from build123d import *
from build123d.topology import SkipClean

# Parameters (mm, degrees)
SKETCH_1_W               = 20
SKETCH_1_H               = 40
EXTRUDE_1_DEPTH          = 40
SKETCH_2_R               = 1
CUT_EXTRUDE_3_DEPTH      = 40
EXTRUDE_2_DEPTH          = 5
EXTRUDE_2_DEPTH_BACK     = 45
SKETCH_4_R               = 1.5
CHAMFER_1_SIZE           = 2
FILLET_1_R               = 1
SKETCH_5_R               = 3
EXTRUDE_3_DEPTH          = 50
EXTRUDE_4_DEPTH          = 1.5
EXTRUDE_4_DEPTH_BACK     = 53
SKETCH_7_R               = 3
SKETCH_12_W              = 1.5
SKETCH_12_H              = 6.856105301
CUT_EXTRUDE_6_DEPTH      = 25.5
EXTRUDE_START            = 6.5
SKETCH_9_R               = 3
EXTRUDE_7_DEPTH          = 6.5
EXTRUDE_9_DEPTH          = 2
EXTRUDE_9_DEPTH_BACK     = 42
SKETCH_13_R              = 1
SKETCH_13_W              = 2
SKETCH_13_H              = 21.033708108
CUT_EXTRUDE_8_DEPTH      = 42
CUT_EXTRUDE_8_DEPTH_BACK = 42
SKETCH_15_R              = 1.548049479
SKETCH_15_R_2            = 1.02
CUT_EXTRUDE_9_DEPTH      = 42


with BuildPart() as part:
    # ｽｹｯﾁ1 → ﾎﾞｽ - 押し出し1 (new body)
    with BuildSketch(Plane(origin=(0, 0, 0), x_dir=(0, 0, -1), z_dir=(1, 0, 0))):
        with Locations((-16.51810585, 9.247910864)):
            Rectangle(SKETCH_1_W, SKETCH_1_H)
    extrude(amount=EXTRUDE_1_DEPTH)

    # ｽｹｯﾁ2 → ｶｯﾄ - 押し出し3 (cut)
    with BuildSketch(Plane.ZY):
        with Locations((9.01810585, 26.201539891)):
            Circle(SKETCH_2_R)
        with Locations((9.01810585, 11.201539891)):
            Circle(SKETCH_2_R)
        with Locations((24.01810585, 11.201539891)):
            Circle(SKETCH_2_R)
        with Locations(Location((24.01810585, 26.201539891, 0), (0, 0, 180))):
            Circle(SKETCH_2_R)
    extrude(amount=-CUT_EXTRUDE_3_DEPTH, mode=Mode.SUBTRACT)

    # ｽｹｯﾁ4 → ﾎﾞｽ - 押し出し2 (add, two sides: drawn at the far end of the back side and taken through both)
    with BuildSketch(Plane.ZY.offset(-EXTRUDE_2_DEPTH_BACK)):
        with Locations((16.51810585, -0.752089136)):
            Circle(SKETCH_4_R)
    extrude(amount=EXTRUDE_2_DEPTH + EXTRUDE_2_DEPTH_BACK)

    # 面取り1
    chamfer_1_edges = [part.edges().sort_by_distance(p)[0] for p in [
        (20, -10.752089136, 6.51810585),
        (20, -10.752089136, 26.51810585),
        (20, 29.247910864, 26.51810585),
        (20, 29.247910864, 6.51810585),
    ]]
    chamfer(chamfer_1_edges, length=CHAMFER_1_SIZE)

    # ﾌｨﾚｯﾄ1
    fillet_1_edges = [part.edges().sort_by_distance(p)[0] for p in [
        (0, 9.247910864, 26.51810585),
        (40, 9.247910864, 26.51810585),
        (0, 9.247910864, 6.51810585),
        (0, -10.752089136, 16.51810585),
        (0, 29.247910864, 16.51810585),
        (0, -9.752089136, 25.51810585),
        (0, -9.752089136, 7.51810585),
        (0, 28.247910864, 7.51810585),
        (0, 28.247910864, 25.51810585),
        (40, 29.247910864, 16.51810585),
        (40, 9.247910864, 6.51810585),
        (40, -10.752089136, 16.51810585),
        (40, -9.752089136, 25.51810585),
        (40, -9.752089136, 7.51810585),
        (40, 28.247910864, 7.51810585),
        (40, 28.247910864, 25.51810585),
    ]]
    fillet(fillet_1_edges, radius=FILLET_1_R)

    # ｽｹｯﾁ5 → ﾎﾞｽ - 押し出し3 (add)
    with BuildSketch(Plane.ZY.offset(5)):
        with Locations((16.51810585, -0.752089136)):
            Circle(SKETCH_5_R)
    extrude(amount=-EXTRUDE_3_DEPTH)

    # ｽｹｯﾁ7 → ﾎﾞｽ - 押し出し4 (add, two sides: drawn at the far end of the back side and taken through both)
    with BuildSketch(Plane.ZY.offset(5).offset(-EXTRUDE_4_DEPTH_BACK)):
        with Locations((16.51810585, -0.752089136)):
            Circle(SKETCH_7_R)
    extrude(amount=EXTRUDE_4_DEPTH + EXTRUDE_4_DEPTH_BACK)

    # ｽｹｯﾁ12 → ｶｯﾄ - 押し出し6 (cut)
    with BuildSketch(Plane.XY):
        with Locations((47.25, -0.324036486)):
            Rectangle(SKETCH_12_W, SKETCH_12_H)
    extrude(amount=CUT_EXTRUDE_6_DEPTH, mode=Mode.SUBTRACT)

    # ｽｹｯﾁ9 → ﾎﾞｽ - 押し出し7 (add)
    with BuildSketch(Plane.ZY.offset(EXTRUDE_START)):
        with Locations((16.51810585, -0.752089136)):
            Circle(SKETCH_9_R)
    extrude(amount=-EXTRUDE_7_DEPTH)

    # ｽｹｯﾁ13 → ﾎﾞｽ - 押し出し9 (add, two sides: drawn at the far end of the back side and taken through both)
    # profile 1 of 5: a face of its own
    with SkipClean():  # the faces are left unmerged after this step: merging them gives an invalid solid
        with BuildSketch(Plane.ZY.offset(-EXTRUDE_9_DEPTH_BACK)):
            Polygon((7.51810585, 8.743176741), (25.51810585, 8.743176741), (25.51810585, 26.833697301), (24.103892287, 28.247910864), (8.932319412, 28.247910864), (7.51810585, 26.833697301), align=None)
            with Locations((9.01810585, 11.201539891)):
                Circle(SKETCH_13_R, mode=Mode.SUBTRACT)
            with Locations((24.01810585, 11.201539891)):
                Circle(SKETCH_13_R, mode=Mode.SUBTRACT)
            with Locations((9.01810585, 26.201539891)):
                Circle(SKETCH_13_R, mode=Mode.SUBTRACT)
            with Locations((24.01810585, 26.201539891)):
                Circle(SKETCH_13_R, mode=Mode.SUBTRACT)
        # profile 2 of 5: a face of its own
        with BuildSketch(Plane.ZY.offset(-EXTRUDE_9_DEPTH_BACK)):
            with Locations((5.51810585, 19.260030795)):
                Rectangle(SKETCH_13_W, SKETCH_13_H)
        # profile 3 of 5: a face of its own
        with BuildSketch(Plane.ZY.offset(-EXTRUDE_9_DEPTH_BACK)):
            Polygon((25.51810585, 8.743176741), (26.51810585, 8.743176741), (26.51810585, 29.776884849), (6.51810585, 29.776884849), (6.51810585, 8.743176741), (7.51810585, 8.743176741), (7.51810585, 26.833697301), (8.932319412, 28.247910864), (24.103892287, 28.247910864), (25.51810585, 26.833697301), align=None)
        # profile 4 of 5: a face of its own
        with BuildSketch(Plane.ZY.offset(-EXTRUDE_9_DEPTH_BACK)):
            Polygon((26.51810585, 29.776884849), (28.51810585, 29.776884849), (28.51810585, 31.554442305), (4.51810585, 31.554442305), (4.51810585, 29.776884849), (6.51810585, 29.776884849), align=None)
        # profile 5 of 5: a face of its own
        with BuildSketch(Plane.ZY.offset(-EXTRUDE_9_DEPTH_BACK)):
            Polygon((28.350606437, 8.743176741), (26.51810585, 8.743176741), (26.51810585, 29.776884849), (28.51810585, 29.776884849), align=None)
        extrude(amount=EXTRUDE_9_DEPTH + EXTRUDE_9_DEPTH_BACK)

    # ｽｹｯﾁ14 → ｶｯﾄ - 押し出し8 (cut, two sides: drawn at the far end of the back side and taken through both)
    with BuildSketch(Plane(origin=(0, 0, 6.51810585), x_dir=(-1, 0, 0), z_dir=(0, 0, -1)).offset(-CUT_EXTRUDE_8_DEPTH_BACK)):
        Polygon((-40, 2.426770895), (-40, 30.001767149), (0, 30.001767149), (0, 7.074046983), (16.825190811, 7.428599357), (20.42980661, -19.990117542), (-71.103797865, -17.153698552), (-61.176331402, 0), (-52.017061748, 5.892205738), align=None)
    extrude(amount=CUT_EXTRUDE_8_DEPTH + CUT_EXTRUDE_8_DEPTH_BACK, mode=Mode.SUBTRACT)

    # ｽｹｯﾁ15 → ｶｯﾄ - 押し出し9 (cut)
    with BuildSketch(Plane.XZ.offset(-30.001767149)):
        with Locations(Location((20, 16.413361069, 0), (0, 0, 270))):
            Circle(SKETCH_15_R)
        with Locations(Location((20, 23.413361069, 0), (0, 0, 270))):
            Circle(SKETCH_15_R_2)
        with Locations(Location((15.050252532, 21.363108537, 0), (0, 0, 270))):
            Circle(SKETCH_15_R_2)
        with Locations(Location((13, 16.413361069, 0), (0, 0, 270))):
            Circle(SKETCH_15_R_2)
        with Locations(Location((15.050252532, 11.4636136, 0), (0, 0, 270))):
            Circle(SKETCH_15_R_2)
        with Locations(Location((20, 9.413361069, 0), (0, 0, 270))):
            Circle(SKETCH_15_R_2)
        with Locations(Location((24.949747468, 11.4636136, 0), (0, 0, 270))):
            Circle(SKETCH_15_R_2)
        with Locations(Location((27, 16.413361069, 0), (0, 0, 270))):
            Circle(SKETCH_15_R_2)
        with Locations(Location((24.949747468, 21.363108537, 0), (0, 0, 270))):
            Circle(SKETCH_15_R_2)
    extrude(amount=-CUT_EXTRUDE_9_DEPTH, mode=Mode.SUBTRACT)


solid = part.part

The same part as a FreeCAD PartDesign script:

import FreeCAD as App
import Part
import Sketcher
from FreeCAD import Vector
Q = App.Units.Quantity


def edges_at(feature, points):
    """Names of the edges that pass closest to the given points."""
    edges = feature.Shape.Edges
    near = lambda p: min(range(len(edges)), key=lambda i: edges[i].distToShape(Part.Vertex(*p))[0])
    return sorted({f"Edge{near(p) + 1}" for p in points})

doc = App.newDocument("Part")
params = doc.addObject("Spreadsheet::Sheet", "Params")
for row, (alias, value) in enumerate([
    ("sketch1_width", "40 mm"),
    ("sketch1_height", "20 mm"),
    ("pad1_length", "40 mm"),
    ("sketch2_diameter", "2 mm"),
    ("pocket1_length", "40 mm"),
    ("sketch3_diameter", "3 mm"),
    ("pad2_length", "5 mm"),
    ("pad2_length2", "45 mm"),
    ("chamfer_size", "2 mm"),
    ("fillet_radius", "1 mm"),
    ("sketch4_diameter", "6 mm"),
    ("pad3_length", "50 mm"),
    ("sketch5_diameter", "6 mm"),
    ("pad4_length", "1.5 mm"),
    ("pad4_length2", "53 mm"),
    ("sketch6_width", "1.5 mm"),
    ("pocket2_length", "25.5 mm"),
    ("sketch7_diameter", "6 mm"),
    ("pad5_length", "6.5 mm"),
    ("sketch8_diameter", "2 mm"),
    ("sketch8_height", "24 mm"),
    ("pad6_length", "2 mm"),
    ("pad6_length2", "42 mm"),
    ("sketch9_width", "40 mm"),
    ("sketch10_diameter", "2.04 mm"),
    ("pocket4_length", "42 mm"),
], start=1):
    params.set(f"A{row}", alias)
    params.set(f"B{row}", "=" + value)
    params.setAlias(f"B{row}", alias)

body = doc.addObject("PartDesign::Body", "Body")

sketch1 = doc.addObject("Sketcher::SketchObject", "Sketch")
body.addObject(sketch1)
sketch1.AttachmentSupport = (doc.YZ_Plane, [""])
sketch1.MapMode = "FlatFace"
sketch1.addGeometry([
    Part.LineSegment(Vector(29.247911, 26.518106, 0), Vector(-10.752089, 26.518106, 0)),
    Part.LineSegment(Vector(-10.752089, 26.518106, 0), Vector(-10.752089, 6.518106, 0)),
    Part.LineSegment(Vector(-10.752089, 6.518106, 0), Vector(29.247911, 6.518106, 0)),
    Part.LineSegment(Vector(29.247911, 6.518106, 0), Vector(29.247911, 26.518106, 0)),
], False)
sketch1.addConstraint([
    Sketcher.Constraint("Coincident", 0, 2, 1, 1),
    Sketcher.Constraint("Coincident", 1, 2, 2, 1),
    Sketcher.Constraint("Coincident", 2, 2, 3, 1),
    Sketcher.Constraint("Coincident", 3, 2, 0, 1),
    Sketcher.Constraint("Horizontal", 0),
    Sketcher.Constraint("Vertical", 1),
    Sketcher.Constraint("Horizontal", 2),
    Sketcher.Constraint("Vertical", 3),
    Sketcher.Constraint("DistanceX", 0, 2, 0, 1, Q("40 mm")),
    Sketcher.Constraint("DistanceY", 1, 2, 1, 1, Q("20 mm")),
    Sketcher.Constraint("DistanceX", 0, 2, -1, 1, Q("10.752089 mm")),
    Sketcher.Constraint("DistanceY", -1, 1, 0, 2, Q("26.518106 mm")),
])
sketch1.setExpression("Constraints[8]", "Params.sketch1_width")
sketch1.setExpression("Constraints[9]", "Params.sketch1_height")
pad1 = doc.addObject("PartDesign::Pad", "Pad")
body.addObject(pad1)
pad1.Profile = sketch1
pad1.setExpression("Length", "Params.pad1_length")

sketch2 = doc.addObject("Sketcher::SketchObject", "Sketch001")
body.addObject(sketch2)
sketch2.AttachmentSupport = (doc.YZ_Plane, [""])
sketch2.MapMode = "FlatFace"
sketch2.addGeometry([
    Part.Circle(Vector(26.20154, 9.018106, 0), Vector(0, 0, 1), 1),
    Part.Circle(Vector(11.20154, 9.018106, 0), Vector(0, 0, 1), 1),
    Part.Circle(Vector(11.20154, 24.018106, 0), Vector(0, 0, 1), 1),
    Part.Circle(Vector(26.20154, 24.018106, 0), Vector(0, 0, 1), 1),
], False)
sketch2.addConstraint([
    Sketcher.Constraint("Equal", 0, 1),
    Sketcher.Constraint("Equal", 1, 2),
    Sketcher.Constraint("Equal", 2, 3),
    Sketcher.Constraint("Horizontal", 0, 3, 1, 3),
    Sketcher.Constraint("Horizontal", 2, 3, 3, 3),
    Sketcher.Constraint("Vertical", 1, 3, 2, 3),
    Sketcher.Constraint("Vertical", 0, 3, 3, 3),
    Sketcher.Constraint("Diameter", 0, Q("2 mm")),
    Sketcher.Constraint("DistanceX", 1, 3, 0, 3, Q("15 mm")),
    Sketcher.Constraint("DistanceY", 1, 3, 2, 3, Q("15 mm")),
    Sketcher.Constraint("DistanceX", -1, 1, 0, 3, Q("26.20154 mm")),
    Sketcher.Constraint("DistanceY", -1, 1, 0, 3, Q("9.018106 mm")),
])
sketch2.setExpression("Constraints[7]", "Params.sketch2_diameter")
pocket1 = doc.addObject("PartDesign::Pocket", "Pocket")
body.addObject(pocket1)
pocket1.Profile = sketch2
pocket1.setExpression("Length", "Params.pocket1_length")
pocket1.Reversed = True

sketch3 = doc.addObject("Sketcher::SketchObject", "Sketch002")
body.addObject(sketch3)
sketch3.AttachmentSupport = (doc.YZ_Plane, [""])
sketch3.MapMode = "FlatFace"
sketch3.addGeometry(Part.Circle(Vector(-0.752089, 16.518106, 0), Vector(0, 0, 1), 1.5), False)
sketch3.addConstraint([
    Sketcher.Constraint("Diameter", 0, Q("3 mm")),
    Sketcher.Constraint("DistanceX", 0, 3, -1, 1, Q("0.752089 mm")),
    Sketcher.Constraint("DistanceY", -1, 1, 0, 3, Q("16.518106 mm")),
])
sketch3.setExpression("Constraints[0]", "Params.sketch3_diameter")
pad2 = doc.addObject("PartDesign::Pad", "Pad001")
body.addObject(pad2)
pad2.Profile = sketch3
pad2.Type = "TwoLengths"
pad2.setExpression("Length", "Params.pad2_length")
pad2.setExpression("Length2", "Params.pad2_length2")
pad2.Reversed = True
doc.recompute()

chamfer = doc.addObject("PartDesign::Chamfer", "Chamfer")
body.addObject(chamfer)
chamfer.Base = (pad2, edges_at(pad2, [
    (20, -10.752, 6.518),
    (20, -10.752, 26.518),
    (20, 29.248, 26.518),
    (20, 29.248, 6.518),
]))
chamfer.setExpression("Size", "Params.chamfer_size")
doc.recompute()

fillet = doc.addObject("PartDesign::Fillet", "Fillet")
body.addObject(fillet)
fillet.Base = (chamfer, edges_at(chamfer, [
    (0, 9.248, 26.518),
    (40, 9.248, 26.518),
    (0, 9.248, 6.518),
    (0, -10.752, 16.518),
    (0, 29.248, 16.518),
    (0, -9.752, 25.518),
    (0, -9.752, 7.518),
    (0, 28.248, 7.518),
    (0, 28.248, 25.518),
    (40, 29.248, 16.518),
    (40, 9.248, 6.518),
    (40, -10.752, 16.518),
    (40, -9.752, 25.518),
    (40, -9.752, 7.518),
    (40, 28.248, 7.518),
    (40, 28.248, 25.518),
]))
fillet.setExpression("Radius", "Params.fillet_radius")

sketch4 = doc.addObject("Sketcher::SketchObject", "Sketch003")
body.addObject(sketch4)
sketch4.AttachmentSupport = (doc.YZ_Plane, [""])
sketch4.MapMode = "FlatFace"
sketch4.AttachmentOffset = App.Placement(Vector(0, 0, -5), App.Rotation())
sketch4.addGeometry(Part.Circle(Vector(-0.752089, 16.518106, 0), Vector(0, 0, 1), 3), False)
sketch4.addConstraint([
    Sketcher.Constraint("Diameter", 0, Q("6 mm")),
    Sketcher.Constraint("DistanceX", 0, 3, -1, 1, Q("0.752089 mm")),
    Sketcher.Constraint("DistanceY", -1, 1, 0, 3, Q("16.518106 mm")),
])
sketch4.setExpression("Constraints[0]", "Params.sketch4_diameter")
pad3 = doc.addObject("PartDesign::Pad", "Pad002")
body.addObject(pad3)
pad3.Profile = sketch4
pad3.setExpression("Length", "Params.pad3_length")

sketch5 = doc.addObject("Sketcher::SketchObject", "Sketch004")
body.addObject(sketch5)
sketch5.AttachmentSupport = (doc.YZ_Plane, [""])
sketch5.MapMode = "FlatFace"
sketch5.AttachmentOffset = App.Placement(Vector(0, 0, -5), App.Rotation())
sketch5.addGeometry(Part.Circle(Vector(-0.752089, 16.518106, 0), Vector(0, 0, 1), 3), False)
sketch5.addConstraint([
    Sketcher.Constraint("Diameter", 0, Q("6 mm")),
    Sketcher.Constraint("DistanceX", 0, 3, -1, 1, Q("0.752089 mm")),
    Sketcher.Constraint("DistanceY", -1, 1, 0, 3, Q("16.518106 mm")),
])
sketch5.setExpression("Constraints[0]", "Params.sketch5_diameter")
pad4 = doc.addObject("PartDesign::Pad", "Pad003")
body.addObject(pad4)
pad4.Profile = sketch5
pad4.Type = "TwoLengths"
pad4.setExpression("Length", "Params.pad4_length")
pad4.setExpression("Length2", "Params.pad4_length2")
pad4.Reversed = True

sketch6 = doc.addObject("Sketcher::SketchObject", "Sketch005")
body.addObject(sketch6)
sketch6.AttachmentSupport = (doc.XY_Plane, [""])
sketch6.MapMode = "FlatFace"
sketch6.addGeometry([
    Part.LineSegment(Vector(46.5, 3.104016, 0), Vector(46.5, -3.752089, 0)),
    Part.LineSegment(Vector(46.5, -3.752089, 0), Vector(48, -3.752089, 0)),
    Part.LineSegment(Vector(48, -3.752089, 0), Vector(48, 3.104016, 0)),
    Part.LineSegment(Vector(48, 3.104016, 0), Vector(46.5, 3.104016, 0)),
], False)
sketch6.addConstraint([
    Sketcher.Constraint("Coincident", 0, 2, 1, 1),
    Sketcher.Constraint("Coincident", 1, 2, 2, 1),
    Sketcher.Constraint("Coincident", 2, 2, 3, 1),
    Sketcher.Constraint("Coincident", 3, 2, 0, 1),
    Sketcher.Constraint("Vertical", 0),
    Sketcher.Constraint("Horizontal", 1),
    Sketcher.Constraint("Vertical", 2),
    Sketcher.Constraint("Horizontal", 3),
    Sketcher.Constraint("DistanceX", 1, 1, 1, 2, Q("1.5 mm")),
    Sketcher.Constraint("DistanceX", -1, 1, 1, 2, Q("48 mm")),
    Sketcher.Constraint("DistanceY", 0, 2, 0, 1, Q("6.856105 mm")),
    Sketcher.Constraint("DistanceY", 0, 2, -1, 1, Q("3.752089 mm")),
])
sketch6.setExpression("Constraints[8]", "Params.sketch6_width")
pocket2 = doc.addObject("PartDesign::Pocket", "Pocket001")
body.addObject(pocket2)
pocket2.Profile = sketch6
pocket2.setExpression("Length", "Params.pocket2_length")
pocket2.Reversed = True

sketch7 = doc.addObject("Sketcher::SketchObject", "Sketch006")
body.addObject(sketch7)
sketch7.AttachmentSupport = (doc.YZ_Plane, [""])
sketch7.MapMode = "FlatFace"
sketch7.AttachmentOffset = App.Placement(Vector(0, 0, -6.5), App.Rotation())
sketch7.addGeometry(Part.Circle(Vector(-0.752089, 16.518106, 0), Vector(0, 0, 1), 3), False)
sketch7.addConstraint([
    Sketcher.Constraint("Diameter", 0, Q("6 mm")),
    Sketcher.Constraint("DistanceX", 0, 3, -1, 1, Q("0.752089 mm")),
    Sketcher.Constraint("DistanceY", -1, 1, 0, 3, Q("16.518106 mm")),
])
sketch7.setExpression("Constraints[0]", "Params.sketch7_diameter")
pad5 = doc.addObject("PartDesign::Pad", "Pad004")
body.addObject(pad5)
pad5.Profile = sketch7
pad5.setExpression("Length", "Params.pad5_length")

sketch8 = doc.addObject("Sketcher::SketchObject", "Sketch007")
body.addObject(sketch8)
sketch8.AttachmentSupport = (doc.YZ_Plane, [""])
sketch8.MapMode = "FlatFace"
sketch8.addGeometry([
    Part.LineSegment(Vector(8.743177, 28.350606, 0), Vector(29.776885, 28.518106, 0)),
    Part.LineSegment(Vector(29.776885, 28.518106, 0), Vector(31.554442, 28.518106, 0)),
    Part.LineSegment(Vector(31.554442, 28.518106, 0), Vector(31.554442, 4.518106, 0)),
    Part.LineSegment(Vector(31.554442, 4.518106, 0), Vector(8.743177, 4.518106, 0)),
    Part.LineSegment(Vector(8.743177, 4.518106, 0), Vector(8.743177, 28.350606, 0)),
    Part.Circle(Vector(11.20154, 9.018106, 0), Vector(0, 0, 1), 1),
    Part.Circle(Vector(11.20154, 24.018106, 0), Vector(0, 0, 1), 1),
    Part.Circle(Vector(26.20154, 9.018106, 0), Vector(0, 0, 1), 1),
    Part.Circle(Vector(26.20154, 24.018106, 0), Vector(0, 0, 1), 1),
], False)
sketch8.addConstraint([
    Sketcher.Constraint("Coincident", 0, 2, 1, 1),
    Sketcher.Constraint("Coincident", 1, 2, 2, 1),
    Sketcher.Constraint("Coincident", 2, 2, 3, 1),
    Sketcher.Constraint("Coincident", 3, 2, 4, 1),
    Sketcher.Constraint("Coincident", 4, 2, 0, 1),
    Sketcher.Constraint("Horizontal", 1),
    Sketcher.Constraint("Vertical", 2),
    Sketcher.Constraint("Horizontal", 3),
    Sketcher.Constraint("Vertical", 4),
    Sketcher.Constraint("Equal", 5, 6),
    Sketcher.Constraint("Equal", 6, 7),
    Sketcher.Constraint("Equal", 7, 8),
    Sketcher.Constraint("Horizontal", 5, 3, 7, 3),
    Sketcher.Constraint("Horizontal", 6, 3, 8, 3),
    Sketcher.Constraint("Vertical", 5, 3, 6, 3),
    Sketcher.Constraint("Vertical", 7, 3, 8, 3),
    Sketcher.Constraint("Diameter", 5, Q("2 mm")),
    Sketcher.Constraint("DistanceY", 2, 2, 2, 1, Q("24 mm")),
    Sketcher.Constraint("DistanceY", 5, 3, 6, 3, Q("15 mm")),
    Sketcher.Constraint("DistanceX", 5, 3, 7, 3, Q("15 mm")),
    Sketcher.Constraint("DistanceY", 8, 3, 0, 2, Q("4.5 mm")),
    Sketcher.Constraint("DistanceY", 4, 1, 4, 2, Q("23.832501 mm")),
    Sketcher.Constraint("DistanceX", 1, 1, 1, 2, Q("1.777557 mm")),
    Sketcher.Constraint("DistanceX", 3, 2, 3, 1, Q("22.811266 mm")),
    Sketcher.Constraint("DistanceX", -1, 1, 5, 3, Q("11.20154 mm")),
    Sketcher.Constraint("DistanceY", -1, 1, 5, 3, Q("9.018106 mm")),
    Sketcher.Constraint("DistanceX", -1, 1, 0, 2, Q("29.776885 mm")),
])
sketch8.setExpression("Constraints[16]", "Params.sketch8_diameter")
sketch8.setExpression("Constraints[17]", "Params.sketch8_height")
pad6 = doc.addObject("PartDesign::Pad", "Pad005")
body.addObject(pad6)
pad6.Profile = sketch8
pad6.Type = "TwoLengths"
pad6.setExpression("Length", "Params.pad6_length")
pad6.setExpression("Length2", "Params.pad6_length2")
pad6.Reversed = True

sketch9 = doc.addObject("Sketcher::SketchObject", "Sketch008")
body.addObject(sketch9)
sketch9.AttachmentSupport = (doc.XY_Plane, [""])
sketch9.MapMode = "FlatFace"
sketch9.AttachmentOffset = App.Placement(Vector(0, 0, 6.518106), App.Rotation())
sketch9.addGeometry([
    Part.LineSegment(Vector(40, 30.001767, 0), Vector(40, 2.426771, 0)),
    Part.LineSegment(Vector(40, 2.426771, 0), Vector(52.017062, 5.892206, 0)),
    Part.LineSegment(Vector(52.017062, 5.892206, 0), Vector(61.176331, 0, 0)),
    Part.LineSegment(Vector(61.176331, 0, 0), Vector(71.103798, -17.153699, 0)),
    Part.LineSegment(Vector(71.103798, -17.153699, 0), Vector(-20.429807, -19.990118, 0)),
    Part.LineSegment(Vector(-20.429807, -19.990118, 0), Vector(-16.825191, 7.428599, 0)),
    Part.LineSegment(Vector(-16.825191, 7.428599, 0), Vector(0, 7.074047, 0)),
    Part.LineSegment(Vector(0, 7.074047, 0), Vector(0, 30.001767, 0)),
    Part.LineSegment(Vector(0, 30.001767, 0), Vector(40, 30.001767, 0)),
], False)
sketch9.addConstraint([
    Sketcher.Constraint("Coincident", 0, 2, 1, 1),
    Sketcher.Constraint("Coincident", 1, 2, 2, 1),
    Sketcher.Constraint("Coincident", 2, 2, 3, 1),
    Sketcher.Constraint("Coincident", 3, 2, 4, 1),
    Sketcher.Constraint("Coincident", 4, 2, 5, 1),
    Sketcher.Constraint("Coincident", 5, 2, 6, 1),
    Sketcher.Constraint("Coincident", 6, 2, 7, 1),
    Sketcher.Constraint("Coincident", 7, 2, 8, 1),
    Sketcher.Constraint("Coincident", 8, 2, 0, 1),
    Sketcher.Constraint("Vertical", 0),
    Sketcher.Constraint("Vertical", 7),
    Sketcher.Constraint("Horizontal", 8),
    Sketcher.Constraint("PointOnObject", 2, 2, -1),
    Sketcher.Constraint("PointOnObject", 6, 2, -2),
    Sketcher.Constraint("DistanceX", 8, 1, 8, 2, Q("40 mm")),
    Sketcher.Constraint("DistanceY", 7, 1, 7, 2, Q("22.92772 mm")),
    Sketcher.Constraint("DistanceY", 3, 2, -1, 1, Q("17.153699 mm")),
    Sketcher.Constraint("DistanceY", -1, 1, 5, 2, Q("7.428599 mm")),
    Sketcher.Constraint("Distance", 1, Q("12.506759 mm")),
    Sketcher.Constraint("Distance", 4, Q("91.577541 mm")),
    Sketcher.Constraint("DistanceY", 0, 2, 0, 1, Q("27.574996 mm")),
    Sketcher.Constraint("DistanceY", -1, 1, 0, 2, Q("2.426771 mm")),
    Sketcher.Constraint("DistanceX", -1, 1, 1, 2, Q("52.017062 mm")),
    Sketcher.Constraint("DistanceX", -1, 1, 2, 2, Q("61.176331 mm")),
    Sketcher.Constraint("DistanceX", 5, 2, -1, 1, Q("16.825191 mm")),
    Sketcher.Constraint("DistanceY", 4, 2, 0, 2, Q("22.416888 mm")),
    Sketcher.Constraint("DistanceX", 4, 2, 1, 2, Q("72.446868 mm")),
])
sketch9.setExpression("Constraints[14]", "Params.sketch9_width")
pocket3 = doc.addObject("PartDesign::Pocket", "Pocket002")
body.addObject(pocket3)
pocket3.Profile = sketch9
pocket3.Type = "ThroughAll"
pocket3.Midplane = True

sketch10 = doc.addObject("Sketcher::SketchObject", "Sketch009")
body.addObject(sketch10)
sketch10.AttachmentSupport = (doc.XZ_Plane, [""])
sketch10.MapMode = "FlatFace"
sketch10.AttachmentOffset = App.Placement(Vector(0, 0, -30.001767), App.Rotation())
sketch10.addGeometry([
    Part.Circle(Vector(20, 16.413361, 0), Vector(0, 0, 1), 1.548049),
    Part.Circle(Vector(20, 23.413361, 0), Vector(0, 0, 1), 1.02),
    Part.Circle(Vector(15.050253, 21.363109, 0), Vector(0, 0, 1), 1.02),
    Part.Circle(Vector(13, 16.413361, 0), Vector(0, 0, 1), 1.02),
    Part.Circle(Vector(15.050253, 11.463614, 0), Vector(0, 0, 1), 1.02),
    Part.Circle(Vector(20, 9.413361, 0), Vector(0, 0, 1), 1.02),
    Part.Circle(Vector(24.949747, 11.463614, 0), Vector(0, 0, 1), 1.02),
    Part.Circle(Vector(27, 16.413361, 0), Vector(0, 0, 1), 1.02),
    Part.Circle(Vector(24.949747, 21.363109, 0), Vector(0, 0, 1), 1.02),
], False)
sketch10.addConstraint([
    Sketcher.Constraint("Equal", 1, 2),
    Sketcher.Constraint("Equal", 2, 3),
    Sketcher.Constraint("Equal", 3, 4),
    Sketcher.Constraint("Equal", 4, 5),
    Sketcher.Constraint("Equal", 5, 6),
    Sketcher.Constraint("Equal", 6, 7),
    Sketcher.Constraint("Equal", 7, 8),
    Sketcher.Constraint("Horizontal", 0, 3, 3, 3),
    Sketcher.Constraint("Horizontal", 4, 3, 6, 3),
    Sketcher.Constraint("Horizontal", 3, 3, 7, 3),
    Sketcher.Constraint("Horizontal", 2, 3, 8, 3),
    Sketcher.Constraint("Vertical", 0, 3, 1, 3),
    Sketcher.Constraint("Vertical", 2, 3, 4, 3),
    Sketcher.Constraint("Vertical", 1, 3, 5, 3),
    Sketcher.Constraint("Vertical", 6, 3, 8, 3),
    Sketcher.Constraint("Diameter", 1, Q("2.04 mm")),
    Sketcher.Constraint("DistanceX", -1, 1, 0, 3, Q("20 mm")),
    Sketcher.Constraint("DistanceX", -1, 1, 3, 3, Q("13 mm")),
    Sketcher.Constraint("DistanceX", -1, 1, 7, 3, Q("27 mm")),
    Sketcher.Constraint("DistanceY", 0, 3, 1, 3, Q("7 mm")),
    Sketcher.Constraint("DistanceY", 5, 3, 0, 3, Q("7 mm")),
    Sketcher.Constraint("Diameter", 0, Q("3.096099 mm")),
    Sketcher.Constraint("DistanceY", -1, 1, 0, 3, Q("16.413361 mm")),
    Sketcher.Constraint("DistanceY", -1, 1, 2, 3, Q("21.363109 mm")),
    Sketcher.Constraint("DistanceX", -1, 1, 2, 3, Q("15.050253 mm")),
    Sketcher.Constraint("DistanceY", -1, 1, 4, 3, Q("11.463614 mm")),
    Sketcher.Constraint("DistanceX", -1, 1, 6, 3, Q("24.949747 mm")),
])
sketch10.setExpression("Constraints[15]", "Params.sketch10_diameter")
pocket4 = doc.addObject("PartDesign::Pocket", "Pocket003")
body.addObject(pocket4)
pocket4.Profile = sketch10
pocket4.setExpression("Length", "Params.pocket4_length")

doc.recompute()
